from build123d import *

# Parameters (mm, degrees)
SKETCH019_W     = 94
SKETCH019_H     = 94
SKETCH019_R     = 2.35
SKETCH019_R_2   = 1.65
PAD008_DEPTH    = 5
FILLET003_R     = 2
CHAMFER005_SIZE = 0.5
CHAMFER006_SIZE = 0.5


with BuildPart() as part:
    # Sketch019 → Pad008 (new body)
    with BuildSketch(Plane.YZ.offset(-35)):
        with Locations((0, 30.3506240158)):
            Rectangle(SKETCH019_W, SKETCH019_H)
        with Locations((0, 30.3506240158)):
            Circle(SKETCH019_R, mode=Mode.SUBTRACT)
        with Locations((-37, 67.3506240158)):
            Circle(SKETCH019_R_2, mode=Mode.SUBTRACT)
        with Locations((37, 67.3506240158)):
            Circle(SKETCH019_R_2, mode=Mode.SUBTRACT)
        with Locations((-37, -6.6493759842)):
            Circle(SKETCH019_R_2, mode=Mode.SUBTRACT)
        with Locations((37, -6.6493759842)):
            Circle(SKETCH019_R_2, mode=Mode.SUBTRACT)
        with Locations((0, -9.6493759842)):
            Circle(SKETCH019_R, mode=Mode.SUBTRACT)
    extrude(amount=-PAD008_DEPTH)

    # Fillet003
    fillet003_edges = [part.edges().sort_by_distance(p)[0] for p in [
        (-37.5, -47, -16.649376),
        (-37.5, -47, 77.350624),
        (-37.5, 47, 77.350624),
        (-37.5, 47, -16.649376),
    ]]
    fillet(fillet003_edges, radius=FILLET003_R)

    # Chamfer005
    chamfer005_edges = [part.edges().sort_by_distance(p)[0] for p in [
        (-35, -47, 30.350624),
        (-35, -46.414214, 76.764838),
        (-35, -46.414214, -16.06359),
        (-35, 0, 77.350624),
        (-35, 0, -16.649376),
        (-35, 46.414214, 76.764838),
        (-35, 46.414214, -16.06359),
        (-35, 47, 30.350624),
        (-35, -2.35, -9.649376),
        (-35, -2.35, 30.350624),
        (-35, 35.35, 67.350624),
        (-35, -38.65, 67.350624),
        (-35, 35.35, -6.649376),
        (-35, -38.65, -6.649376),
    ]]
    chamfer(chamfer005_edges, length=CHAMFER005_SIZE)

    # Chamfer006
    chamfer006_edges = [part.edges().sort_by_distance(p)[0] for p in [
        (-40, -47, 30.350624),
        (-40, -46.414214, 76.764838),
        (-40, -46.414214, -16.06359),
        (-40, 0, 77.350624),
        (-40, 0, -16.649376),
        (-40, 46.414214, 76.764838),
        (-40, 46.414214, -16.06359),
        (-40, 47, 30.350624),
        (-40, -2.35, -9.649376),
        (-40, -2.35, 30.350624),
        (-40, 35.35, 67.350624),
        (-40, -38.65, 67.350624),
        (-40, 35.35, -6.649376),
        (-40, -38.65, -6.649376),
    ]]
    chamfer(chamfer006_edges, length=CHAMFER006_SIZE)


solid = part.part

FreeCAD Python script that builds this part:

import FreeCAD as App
import Part
import Sketcher


def edges_at(feature, points):
    """Names of the edges that pass closest to the given points."""
    edges = feature.Shape.Edges
    near = lambda p: min(range(len(edges)), key=lambda i: edges[i].distToShape(Part.Vertex(*p))[0])
    return sorted({f"Edge{near(p) + 1}" for p in points})


def add_polygon(sketch, points):
    """Adds a closed chain of lines whose ends are joined by coincident constraints."""
    first, n = sketch.GeometryCount, len(points)
    for a, b in zip(points, points[1:] + points[:1]):
        sketch.addGeometry(Part.LineSegment(App.Vector(*a, 0), App.Vector(*b, 0)), False)
    for i in range(n):
        sketch.addConstraint(Sketcher.Constraint("Coincident", first + i, 2, first + (i + 1) % n, 1))

doc = App.newDocument("Part")
params = doc.addObject("Spreadsheet::Sheet", "Params")
for row, (alias, value) in enumerate([
    ("sketch1_diameter", "3.3 mm"),
    ("sketch1_diameter2", "4.7 mm"),
    ("sketch1_width", "94 mm"),
    ("pad1_length", "5 mm"),
    ("fillet_radius", "2 mm"),
    ("chamfer_size", "0.5 mm"),
    ("chamfer2_size", "0.5 mm"),
], start=1):
    params.set(f"A{row}", alias)
    params.set(f"B{row}", "=" + value)
    params.setAlias(f"B{row}", alias)

body = doc.addObject("PartDesign::Body", "Body")

sketch1 = body.newObject("Sketcher::SketchObject", "Sketch")
sketch1.AttachmentSupport = (doc.getObject("YZ_Plane"), [""])
sketch1.MapMode = "FlatFace"
sketch1.AttachmentOffset = App.Placement(App.Vector(0, 0, -35), App.Rotation())
add_polygon(sketch1, [(-47, 77.4), (-47, -16.6), (47, -16.6), (47, 77.4)])
sketch1.addGeometry(Part.Circle(App.Vector(-37, -6.6, 0), App.Vector(0, 0, 1), 1.6), False)
sketch1.addGeometry(Part.Circle(App.Vector(0, -9.6, 0), App.Vector(0, 0, 1), 2.4), False)
sketch1.addGeometry(Part.Circle(App.Vector(37, -6.6, 0), App.Vector(0, 0, 1), 1.6), False)
sketch1.addGeometry(Part.Circle(App.Vector(-37, 67.4, 0), App.Vector(0, 0, 1), 1.6), False)
sketch1.addGeometry(Part.Circle(App.Vector(0, 30.4, 0), App.Vector(0, 0, 1), 2.4), False)
sketch1.addGeometry(Part.Circle(App.Vector(37, 67.4, 0), App.Vector(0, 0, 1), 1.6), False)
sketch1.addConstraint(Sketcher.Constraint("Vertical", 0))
sketch1.addConstraint(Sketcher.Constraint("Horizontal", 1))
sketch1.addConstraint(Sketcher.Constraint("Vertical", 2))
sketch1.addConstraint(Sketcher.Constraint("Horizontal", 3))
sketch1.addConstraint(Sketcher.Constraint("Equal", 4, 6))
sketch1.addConstraint(Sketcher.Constraint("Equal", 6, 7))
sketch1.addConstraint(Sketcher.Constraint("Equal", 5, 8))
sketch1.addConstraint(Sketcher.Constraint("Equal", 7, 9))
sketch1.addConstraint(Sketcher.Constraint("Symmetric", 4, 3, 6, 3, -2))
sketch1.addConstraint(Sketcher.Constraint("Symmetric", 7, 3, 9, 3, -2))
sketch1.addConstraint(Sketcher.Constraint("PointOnObject", 5, 3, -2))
sketch1.addConstraint(Sketcher.Constraint("PointOnObject", 8, 3, -2))
sketch1.addConstraint(Sketcher.Constraint("Vertical", 4, 3, 7, 3))
sketch1.addConstraint(Sketcher.Constraint("Equal", 3, 0))
sketch1.addConstraint(Sketcher.Constraint("Diameter", 4, 3.3))
sketch1.addConstraint(Sketcher.Constraint("Diameter", 5, 4.7))
sketch1.addConstraint(Sketcher.Constraint("DistanceX", 1, 1, 1, 2, 94.0))
sketch1.addConstraint(Sketcher.Constraint("DistanceX", 4, 3, -1, 1, 37.0))
sketch1.addConstraint(Sketcher.Constraint("DistanceX", 0, 2, -1, 1, 47.0))
sketch1.addConstraint(Sketcher.Constraint("DistanceY", 5, 3, 4, 3, 3.0))
sketch1.addConstraint(Sketcher.Constraint("DistanceY", 4, 3, 7, 3, 74.0))
sketch1.addConstraint(Sketcher.Constraint("DistanceY", 5, 3, 8, 3, 40.0))
sketch1.addConstraint(Sketcher.Constraint("DistanceY", 0, 2, 4, 3, 10.0))
sketch1.addConstraint(Sketcher.Constraint("DistanceY", 4, 3, -1, 1, 6.649376))
sketch1.setExpression("Constraints[18]", "Params.sketch1_diameter")
sketch1.setExpression("Constraints[19]", "Params.sketch1_diameter2")
sketch1.setExpression("Constraints[20]", "Params.sketch1_width")
pad1 = body.newObject("PartDesign::Pad", "Pad")
pad1.Profile = sketch1
pad1.setExpression("Length", "Params.pad1_length")
pad1.Reversed = True
doc.recompute()

fillet = body.newObject("PartDesign::Fillet", "Fillet")
fillet.Base = (pad1, edges_at(pad1, [
    (-37.5, -47, -16.649),
    (-37.5, -47, 77.351),
    (-37.5, 47, 77.351),
    (-37.5, 47, -16.649),
]))
fillet.setExpression("Radius", "Params.fillet_radius")
doc.recompute()

chamfer = body.newObject("PartDesign::Chamfer", "Chamfer")
chamfer.Base = (fillet, edges_at(fillet, [
    (-35, -47, 30.351),
    (-35, -46.414, 76.765),
    (-35, -46.414, -16.064),
    (-35, 0, 77.351),
    (-35, 0, -16.649),
    (-35, 46.414, 76.765),
    (-35, 46.414, -16.064),
    (-35, 47, 30.351),
    (-35, -2.35, -9.649),
    (-35, -2.35, 30.351),
    (-35, 35.35, 67.351),
    (-35, -38.65, 67.351),
    (-35, 35.35, -6.649),
    (-35, -38.65, -6.649),
]))
chamfer.setExpression("Size", "Params.chamfer_size")
doc.recompute()

chamfer2 = body.newObject("PartDesign::Chamfer", "Chamfer001")
chamfer2.Base = (chamfer, edges_at(chamfer, [
    (-40, -47, 30.351),
    (-40, -46.414, 76.765),
    (-40, -46.414, -16.064),
    (-40, 0, 77.351),
    (-40, 0, -16.649),
    (-40, 46.414, 76.765),
    (-40, 46.414, -16.064),
    (-40, 47, 30.351),
    (-40, -2.35, -9.649),
    (-40, -2.35, 30.351),
    (-40, 35.35, 67.351),
    (-40, -38.65, 67.351),
    (-40, 35.35, -6.649),
    (-40, -38.65, -6.649),
]))
chamfer2.setExpression("Size", "Params.chamfer2_size")

doc.recompute()
